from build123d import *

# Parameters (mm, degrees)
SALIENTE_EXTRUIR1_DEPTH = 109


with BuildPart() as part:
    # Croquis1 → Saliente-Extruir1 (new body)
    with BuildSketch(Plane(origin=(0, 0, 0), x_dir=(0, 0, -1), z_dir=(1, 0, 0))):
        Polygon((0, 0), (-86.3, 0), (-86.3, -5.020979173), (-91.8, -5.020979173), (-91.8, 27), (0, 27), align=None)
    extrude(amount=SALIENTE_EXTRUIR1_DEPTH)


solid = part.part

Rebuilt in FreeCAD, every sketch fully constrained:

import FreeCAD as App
import Part
import Sketcher
from FreeCAD import Vector
Q = App.Units.Quantity


def add_polygon(sketch, points):
    """Adds a closed chain of lines whose ends are joined by coincident constraints."""
    first, n = sketch.GeometryCount, len(points)
    for a, b in zip(points, points[1:] + points[:1]):
        sketch.addGeometry(Part.LineSegment(App.Vector(*a, 0), App.Vector(*b, 0)), False)
    for i in range(n):
        sketch.addConstraint(Sketcher.Constraint("Coincident", first + i, 2, first + (i + 1) % n, 1))

doc = App.newDocument("Part")
body = doc.addObject("PartDesign::Body", "Body")

# Sketch on YZ plane
sketch1 = body.newObject("Sketcher::SketchObject", "Sketch")
sketch1.AttachmentSupport = (doc.getObject("YZ_Plane"), [""])
sketch1.MapMode = "FlatFace"
add_polygon(sketch1, [(0, 86.3), (0, 0), (27, 0), (27, 91.8), (-5.020979, 91.8), (-5.020979, 86.3)])  # lines 0-5
sketch1.addConstraint([
    Sketcher.Constraint("Vertical", 0),
    Sketcher.Constraint("Horizontal", 1),
    Sketcher.Constraint("Vertical", 2),
    Sketcher.Constraint("Horizontal", 3),
    Sketcher.Constraint("Vertical", 4),
    Sketcher.Constraint("Horizontal", 5),
    Sketcher.Constraint("Coincident", 0, 2, -1, 1),
    Sketcher.Constraint("DistanceX", 1, 1, 1, 2, Q("27 mm")),
    Sketcher.Constraint("DistanceY", 0, 2, 0, 1, Q("86.3 mm")),
    Sketcher.Constraint("DistanceY", 2, 1, 2, 2, Q("91.8 mm")),
    Sketcher.Constraint("DistanceX", 3, 2, 3, 1, Q("32.020979 mm")),
])
pad1 = body.newObject("PartDesign::Pad", "Pad")
pad1.Profile = sketch1
pad1.Length = 109

doc.recompute()
